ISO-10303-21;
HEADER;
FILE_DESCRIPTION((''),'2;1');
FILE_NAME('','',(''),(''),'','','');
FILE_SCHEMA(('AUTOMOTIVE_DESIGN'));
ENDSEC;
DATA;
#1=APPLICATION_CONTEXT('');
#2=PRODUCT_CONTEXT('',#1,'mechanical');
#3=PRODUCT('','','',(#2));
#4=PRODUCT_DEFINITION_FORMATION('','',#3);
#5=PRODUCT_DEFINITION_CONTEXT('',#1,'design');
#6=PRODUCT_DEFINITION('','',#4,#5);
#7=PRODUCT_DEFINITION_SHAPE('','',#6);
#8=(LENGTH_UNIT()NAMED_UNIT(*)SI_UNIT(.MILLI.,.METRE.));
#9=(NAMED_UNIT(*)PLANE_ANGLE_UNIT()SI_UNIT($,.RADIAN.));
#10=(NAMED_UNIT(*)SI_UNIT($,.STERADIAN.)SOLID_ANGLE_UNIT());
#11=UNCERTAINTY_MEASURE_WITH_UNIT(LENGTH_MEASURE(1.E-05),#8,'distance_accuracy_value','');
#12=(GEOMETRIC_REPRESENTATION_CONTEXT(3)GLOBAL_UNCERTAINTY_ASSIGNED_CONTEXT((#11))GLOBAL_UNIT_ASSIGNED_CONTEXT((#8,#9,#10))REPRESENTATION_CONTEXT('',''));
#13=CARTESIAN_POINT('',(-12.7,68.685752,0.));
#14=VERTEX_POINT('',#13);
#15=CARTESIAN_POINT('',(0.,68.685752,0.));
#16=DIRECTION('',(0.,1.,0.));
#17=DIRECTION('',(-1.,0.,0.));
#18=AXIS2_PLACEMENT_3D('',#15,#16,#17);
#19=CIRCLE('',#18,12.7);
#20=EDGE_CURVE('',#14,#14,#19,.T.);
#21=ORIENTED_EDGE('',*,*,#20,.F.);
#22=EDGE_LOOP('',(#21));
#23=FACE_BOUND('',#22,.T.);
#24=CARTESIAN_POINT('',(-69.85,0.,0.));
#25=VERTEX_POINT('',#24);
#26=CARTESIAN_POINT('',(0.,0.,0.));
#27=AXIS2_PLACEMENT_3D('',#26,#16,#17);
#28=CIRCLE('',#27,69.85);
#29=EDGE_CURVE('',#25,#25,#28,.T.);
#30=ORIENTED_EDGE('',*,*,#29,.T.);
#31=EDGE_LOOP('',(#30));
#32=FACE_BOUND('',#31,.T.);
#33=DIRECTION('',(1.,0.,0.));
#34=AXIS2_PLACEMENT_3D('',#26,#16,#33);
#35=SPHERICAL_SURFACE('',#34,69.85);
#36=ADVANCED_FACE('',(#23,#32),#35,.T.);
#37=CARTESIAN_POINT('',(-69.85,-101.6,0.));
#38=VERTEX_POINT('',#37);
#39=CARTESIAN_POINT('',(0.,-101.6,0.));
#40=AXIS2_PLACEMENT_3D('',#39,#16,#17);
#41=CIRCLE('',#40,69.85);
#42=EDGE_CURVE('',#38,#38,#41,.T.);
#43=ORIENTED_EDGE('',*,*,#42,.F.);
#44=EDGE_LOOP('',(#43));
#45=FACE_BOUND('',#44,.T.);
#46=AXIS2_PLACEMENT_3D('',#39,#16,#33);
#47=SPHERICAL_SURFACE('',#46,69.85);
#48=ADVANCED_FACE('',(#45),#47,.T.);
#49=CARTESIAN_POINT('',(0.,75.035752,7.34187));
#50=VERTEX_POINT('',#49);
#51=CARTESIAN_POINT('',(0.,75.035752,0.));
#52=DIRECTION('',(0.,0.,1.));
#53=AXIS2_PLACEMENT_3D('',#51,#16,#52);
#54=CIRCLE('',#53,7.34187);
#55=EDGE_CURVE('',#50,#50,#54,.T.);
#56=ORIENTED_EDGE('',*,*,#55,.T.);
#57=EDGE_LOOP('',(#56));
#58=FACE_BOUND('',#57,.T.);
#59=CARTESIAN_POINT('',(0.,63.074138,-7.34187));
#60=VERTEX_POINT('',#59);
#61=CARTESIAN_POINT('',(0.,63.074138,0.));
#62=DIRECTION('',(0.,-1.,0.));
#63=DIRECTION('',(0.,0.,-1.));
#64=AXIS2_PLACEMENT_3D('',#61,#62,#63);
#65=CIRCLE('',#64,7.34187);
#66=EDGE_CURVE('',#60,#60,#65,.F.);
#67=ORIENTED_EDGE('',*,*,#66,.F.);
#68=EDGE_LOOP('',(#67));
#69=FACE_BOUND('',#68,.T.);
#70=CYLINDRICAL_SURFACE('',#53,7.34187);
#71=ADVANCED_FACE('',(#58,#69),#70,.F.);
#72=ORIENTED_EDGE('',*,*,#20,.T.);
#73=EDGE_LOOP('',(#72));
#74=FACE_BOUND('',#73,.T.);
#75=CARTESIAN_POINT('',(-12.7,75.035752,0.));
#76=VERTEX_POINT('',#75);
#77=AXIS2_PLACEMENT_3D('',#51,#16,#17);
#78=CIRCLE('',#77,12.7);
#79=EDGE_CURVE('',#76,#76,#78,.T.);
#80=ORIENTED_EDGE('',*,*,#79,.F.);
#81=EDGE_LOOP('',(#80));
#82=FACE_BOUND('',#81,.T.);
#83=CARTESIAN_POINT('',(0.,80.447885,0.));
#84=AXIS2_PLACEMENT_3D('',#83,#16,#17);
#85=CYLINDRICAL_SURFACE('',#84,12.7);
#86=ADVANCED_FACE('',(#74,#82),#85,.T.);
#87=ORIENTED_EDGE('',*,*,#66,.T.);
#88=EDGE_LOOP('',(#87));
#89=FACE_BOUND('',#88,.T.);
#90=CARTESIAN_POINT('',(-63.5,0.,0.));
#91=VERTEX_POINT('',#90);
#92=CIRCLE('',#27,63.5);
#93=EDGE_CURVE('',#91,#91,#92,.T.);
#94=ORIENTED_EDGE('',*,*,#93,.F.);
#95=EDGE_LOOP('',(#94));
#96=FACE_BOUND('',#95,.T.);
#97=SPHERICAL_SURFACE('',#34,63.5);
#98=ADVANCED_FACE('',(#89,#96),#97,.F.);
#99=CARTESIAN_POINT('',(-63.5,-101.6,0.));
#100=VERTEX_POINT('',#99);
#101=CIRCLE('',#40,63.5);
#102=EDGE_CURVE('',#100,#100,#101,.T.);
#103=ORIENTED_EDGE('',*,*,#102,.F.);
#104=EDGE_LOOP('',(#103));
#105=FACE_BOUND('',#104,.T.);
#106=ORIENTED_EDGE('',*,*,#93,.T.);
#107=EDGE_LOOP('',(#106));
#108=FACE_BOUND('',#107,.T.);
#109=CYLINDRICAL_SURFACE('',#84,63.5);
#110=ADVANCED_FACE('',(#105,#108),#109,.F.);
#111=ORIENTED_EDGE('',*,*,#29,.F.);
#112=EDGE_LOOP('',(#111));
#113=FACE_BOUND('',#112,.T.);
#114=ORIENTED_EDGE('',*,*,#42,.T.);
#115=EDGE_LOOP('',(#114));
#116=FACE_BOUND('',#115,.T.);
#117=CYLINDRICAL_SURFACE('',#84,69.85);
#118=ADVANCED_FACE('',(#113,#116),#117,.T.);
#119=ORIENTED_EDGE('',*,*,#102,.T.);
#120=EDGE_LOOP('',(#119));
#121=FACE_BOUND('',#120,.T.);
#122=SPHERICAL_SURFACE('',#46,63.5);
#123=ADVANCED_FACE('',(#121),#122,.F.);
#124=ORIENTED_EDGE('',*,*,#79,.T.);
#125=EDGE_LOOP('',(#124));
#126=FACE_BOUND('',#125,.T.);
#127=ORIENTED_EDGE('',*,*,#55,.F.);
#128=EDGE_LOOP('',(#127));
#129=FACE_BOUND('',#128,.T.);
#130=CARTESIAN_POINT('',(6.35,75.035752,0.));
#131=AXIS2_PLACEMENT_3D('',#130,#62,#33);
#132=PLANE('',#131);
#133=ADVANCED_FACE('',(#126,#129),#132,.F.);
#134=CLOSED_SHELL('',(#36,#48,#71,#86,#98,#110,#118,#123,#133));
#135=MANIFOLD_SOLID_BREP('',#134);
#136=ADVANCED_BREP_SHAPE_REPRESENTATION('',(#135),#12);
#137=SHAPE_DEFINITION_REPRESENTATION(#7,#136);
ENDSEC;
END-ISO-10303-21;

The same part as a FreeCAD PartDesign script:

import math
import FreeCAD as App
import Part
import Sketcher
Q = App.Units.Quantity

doc = App.newDocument("Part")
params = doc.addObject("Spreadsheet::Sheet", "Params")
for row, (alias, value) in enumerate([
    ("sketch1_radius", "2.5 in"),
    ("sketch1_height", "4 in"),
    ("sketch1_radius2", "2.75 in"),
    ("sketch1_width", "0.4 in"),
    ("revolution_angle", "360 deg"),
    ("hole_diameter", "0.5781 in"),
    ("hole_depth", "1.53 in"),
], start=1):
    params.set(f"A{row}", alias)
    params.set(f"B{row}", "=" + value)
    params.setAlias(f"B{row}", alias)

body = doc.addObject("PartDesign::Body", "Body")

sketch1 = body.newObject("Sketcher::SketchObject", "Sketch")
sketch1.AttachmentSupport = (doc.getObject("XY_Plane"), [""])
sketch1.MapMode = "FlatFace"
sketch1.addGeometry([
    Part.LineSegment(App.Vector(12.7, 68.685752, 0), App.Vector(12.7, 75.035752, 0)),
    Part.LineSegment(App.Vector(12.7, 75.035752, 0), App.Vector(2.54, 75.035752, 0)),
    Part.LineSegment(App.Vector(2.54, 75.035752, 0), App.Vector(2.54, 63.44918, 0)),
    Part.ArcOfCircle(Part.Circle(App.Vector(0, 0, 0), App.Vector(0, 0, 1), 63.5), math.radians(84.26083), math.radians(87.707557)),
    Part.ArcOfCircle(Part.Circle(App.Vector(0, 0, 0), App.Vector(0, 0, 1), 63.5), math.radians(0), math.radians(84.26083)),
    Part.LineSegment(App.Vector(63.5, 0, 0), App.Vector(63.5, -101.6, 0)),
    Part.ArcOfCircle(Part.Circle(App.Vector(0, -101.6, 0), App.Vector(0, 0, 1), 63.5), math.radians(-90), math.radians(0)),
    Part.LineSegment(App.Vector(0, -165.1, 0), App.Vector(0, -171.45, 0)),
    Part.ArcOfCircle(Part.Circle(App.Vector(0, -101.6, 0), App.Vector(0, 0, 1), 69.85), math.radians(-90), math.radians(0)),
    Part.LineSegment(App.Vector(69.85, -101.6, 0), App.Vector(69.85, 0, 0)),
    Part.ArcOfCircle(Part.Circle(App.Vector(0, 0, 0), App.Vector(0, 0, 1), 69.85), math.radians(0), math.radians(79.524318)),
], False)
sketch1.addConstraint([
    Sketcher.Constraint("Coincident", 0, 2, 1, 1),
    Sketcher.Constraint("Coincident", 1, 2, 2, 1),
    Sketcher.Constraint("Coincident", 2, 2, 3, 2),
    Sketcher.Constraint("Tangent", 3, 1, 4, 2),
    Sketcher.Constraint("Tangent", 4, 1, 5, 1),
    Sketcher.Constraint("Tangent", 5, 2, 6, 2),
    Sketcher.Constraint("Coincident", 6, 1, 7, 1),
    Sketcher.Constraint("Coincident", 7, 2, 8, 1),
    Sketcher.Constraint("Tangent", 8, 2, 9, 1),
    Sketcher.Constraint("Tangent", 9, 2, 10, 1),
    Sketcher.Constraint("Coincident", 10, 2, 0, 1),
    Sketcher.Constraint("Vertical", 0),
    Sketcher.Constraint("Horizontal", 1),
    Sketcher.Constraint("Vertical", 2),
    Sketcher.Constraint("Vertical", 5),
    Sketcher.Constraint("Vertical", 7),
    Sketcher.Constraint("Vertical", 9),
    Sketcher.Constraint("Coincident", 3, 3, -1, 1),
    Sketcher.Constraint("Coincident", 10, 3, -1, 1),
    Sketcher.Constraint("Coincident", 8, 3, 6, 3),
    Sketcher.Constraint("Equal", 3, 4),
    Sketcher.Constraint("Equal", 4, 6),
    Sketcher.Constraint("PointOnObject", 6, 1, -2),
    Sketcher.Constraint("Equal", 0, 7),
    Sketcher.Constraint("Radius", 3, Q("2.5 in")),
    Sketcher.Constraint("DistanceY", 5, 2, 5, 1, Q("4 in")),
    Sketcher.Constraint("Radius", 8, Q("2.75 in")),
    Sketcher.Constraint("DistanceX", 1, 2, 1, 1, Q("0.4 in")),
    Sketcher.Constraint("DistanceX", -1, 1, 0, 2, Q("0.5 in")),
    Sketcher.Constraint("DistanceX", 3, 1, 9, 2, Q("2.5 in")),
])
sketch1.setExpression("Constraints[24]", "Params.sketch1_radius")
sketch1.setExpression("Constraints[25]", "Params.sketch1_height")
sketch1.setExpression("Constraints[26]", "Params.sketch1_radius2")
sketch1.setExpression("Constraints[27]", "Params.sketch1_width")
revolution = body.newObject("PartDesign::Revolution", "Revolution")
revolution.Profile = sketch1
revolution.ReferenceAxis = (sketch1, ["V_Axis"])
revolution.setExpression("Angle", "Params.revolution_angle")

sketch2 = body.newObject("Sketcher::SketchObject", "Sketch001")
sketch2.AttachmentSupport = (doc.getObject("XZ_Plane"), [""])
sketch2.MapMode = "FlatFace"
sketch2.AttachmentOffset = App.Placement(App.Vector(0, 0, -75.035752), App.Rotation())
sketch2.addGeometry(Part.Circle(App.Vector(0, 0, 0), App.Vector(0, 0, 1), 7.34187), False)
sketch2.addConstraint([
    Sketcher.Constraint("Coincident", 0, 3, -1, 1),
    Sketcher.Constraint("Diameter", 0, Q("0.5781 in")),
])
doc.recompute()
hole = body.newObject("PartDesign::Hole", "Hole")
hole.Profile = sketch2
hole.ThreadType = "None"
hole.setExpression("Diameter", "Params.hole_diameter")
hole.DepthType = "Dimension"
hole.setExpression("Depth", "Params.hole_depth")
hole.DrillPoint = "Angled"
hole.DrillPointAngle = 118
hole.Reversed = True

doc.recompute()
